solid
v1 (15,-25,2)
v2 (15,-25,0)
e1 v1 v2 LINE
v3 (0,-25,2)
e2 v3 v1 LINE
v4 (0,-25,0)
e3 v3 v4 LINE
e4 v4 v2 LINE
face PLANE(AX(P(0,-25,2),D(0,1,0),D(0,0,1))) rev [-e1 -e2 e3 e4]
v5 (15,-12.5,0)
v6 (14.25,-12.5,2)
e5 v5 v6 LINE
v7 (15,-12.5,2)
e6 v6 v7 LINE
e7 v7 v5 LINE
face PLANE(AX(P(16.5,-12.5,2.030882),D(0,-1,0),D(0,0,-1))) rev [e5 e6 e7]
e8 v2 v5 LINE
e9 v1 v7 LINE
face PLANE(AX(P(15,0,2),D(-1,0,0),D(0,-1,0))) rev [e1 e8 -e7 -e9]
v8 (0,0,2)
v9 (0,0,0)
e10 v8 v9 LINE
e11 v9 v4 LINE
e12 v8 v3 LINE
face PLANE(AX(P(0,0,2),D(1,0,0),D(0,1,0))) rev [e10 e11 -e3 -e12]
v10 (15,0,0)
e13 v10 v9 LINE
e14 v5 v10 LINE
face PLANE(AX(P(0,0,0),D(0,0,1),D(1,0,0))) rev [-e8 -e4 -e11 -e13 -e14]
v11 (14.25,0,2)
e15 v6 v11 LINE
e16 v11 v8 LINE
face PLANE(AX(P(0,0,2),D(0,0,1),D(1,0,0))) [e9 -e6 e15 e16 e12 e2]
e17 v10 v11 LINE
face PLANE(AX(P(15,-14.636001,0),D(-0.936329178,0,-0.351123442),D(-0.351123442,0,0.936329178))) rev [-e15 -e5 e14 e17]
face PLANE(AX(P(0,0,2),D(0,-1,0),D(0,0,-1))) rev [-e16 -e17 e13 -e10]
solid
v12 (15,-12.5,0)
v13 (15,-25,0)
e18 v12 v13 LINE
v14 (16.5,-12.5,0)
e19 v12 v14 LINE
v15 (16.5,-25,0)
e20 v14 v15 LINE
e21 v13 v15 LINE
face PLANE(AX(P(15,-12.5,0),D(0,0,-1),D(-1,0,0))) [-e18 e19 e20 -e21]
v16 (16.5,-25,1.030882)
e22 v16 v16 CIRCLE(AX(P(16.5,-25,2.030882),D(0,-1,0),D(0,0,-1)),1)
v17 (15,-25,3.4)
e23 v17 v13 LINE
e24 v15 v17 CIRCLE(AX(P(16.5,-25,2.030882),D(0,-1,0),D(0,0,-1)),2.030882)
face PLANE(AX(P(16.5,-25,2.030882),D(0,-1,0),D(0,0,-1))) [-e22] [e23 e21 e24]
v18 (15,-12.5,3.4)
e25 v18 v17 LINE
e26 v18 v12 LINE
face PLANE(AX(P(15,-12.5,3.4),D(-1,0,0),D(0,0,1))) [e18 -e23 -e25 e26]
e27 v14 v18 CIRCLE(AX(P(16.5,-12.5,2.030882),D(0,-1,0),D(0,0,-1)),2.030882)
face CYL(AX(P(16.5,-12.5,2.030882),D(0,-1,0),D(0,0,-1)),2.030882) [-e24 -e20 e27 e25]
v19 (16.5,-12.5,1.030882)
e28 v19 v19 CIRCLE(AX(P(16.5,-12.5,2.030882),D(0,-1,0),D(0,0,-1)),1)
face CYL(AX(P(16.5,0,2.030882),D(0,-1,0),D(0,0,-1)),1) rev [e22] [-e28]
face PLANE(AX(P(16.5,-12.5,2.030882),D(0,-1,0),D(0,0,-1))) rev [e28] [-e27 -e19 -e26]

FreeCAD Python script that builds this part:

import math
import FreeCAD as App
import Part
import Sketcher

V = App.Vector


def add_polygon(sketch, points):
    """Adds a closed chain of lines whose ends are joined by coincident constraints."""
    first, n = sketch.GeometryCount, len(points)
    for a, b in zip(points, points[1:] + points[:1]):
        sketch.addGeometry(Part.LineSegment(App.Vector(*a, 0), App.Vector(*b, 0)), False)
    for i in range(n):
        sketch.addConstraint(Sketcher.Constraint("Coincident", first + i, 2, first + (i + 1) % n, 1))

doc = App.newDocument("Part")
body = doc.addObject("PartDesign::Body", "Body")

# Sketch on XY plane
sketch1 = doc.addObject("Sketcher::SketchObject", "Sketch")
body.addObject(sketch1)
sketch1.AttachmentSupport = (doc.XY_Plane, [""])
sketch1.MapMode = "FlatFace"
add_polygon(sketch1, [(0, 0), (0, -25), (15, -25), (15, 0)])  # lines 0-3
sketch1.addConstraint(Sketcher.Constraint("Vertical", 0))
sketch1.addConstraint(Sketcher.Constraint("Horizontal", 1))
sketch1.addConstraint(Sketcher.Constraint("Vertical", 2))
sketch1.addConstraint(Sketcher.Constraint("Horizontal", 3))
sketch1.addConstraint(Sketcher.Constraint("Coincident", 3, 2, -1, 1))
sketch1.addConstraint(Sketcher.Constraint("DistanceX", 1, 1, 1, 2, 15.0))
sketch1.addConstraint(Sketcher.Constraint("DistanceY", 0, 2, 0, 1, 25.0))
pad1 = doc.addObject("PartDesign::Pad", "Pad")
body.addObject(pad1)
pad1.Profile = sketch1
pad1.Length = 2

# Sketch on XZ plane
sketch2 = doc.addObject("Sketcher::SketchObject", "Sketch001")
body.addObject(sketch2)
sketch2.AttachmentSupport = (doc.XZ_Plane, [""])
sketch2.MapMode = "FlatFace"
add_polygon(sketch2, [(15, 0), (14.2, 2), (15, 2)])  # lines 0-2
sketch2.addConstraint(Sketcher.Constraint("Horizontal", 1))
sketch2.addConstraint(Sketcher.Constraint("Vertical", 2))
sketch2.addConstraint(Sketcher.Constraint("PointOnObject", 2, 2, -1))
sketch2.addConstraint(Sketcher.Constraint("DistanceY", 2, 2, 2, 1, 2.0))
sketch2.addConstraint(Sketcher.Constraint("DistanceX", -1, 1, 1, 2, 15.0))
sketch2.addConstraint(Sketcher.Constraint("DistanceX", 1, 1, 1, 2, 0.75))
pocket1 = doc.addObject("PartDesign::Pocket", "Pocket")
body.addObject(pocket1)
pocket1.Profile = sketch2
pocket1.Length = 12.5
pocket1.Reversed = True
body2 = doc.addObject("PartDesign::Body", "Body001")

# Sketch on XZ plane
sketch3 = doc.addObject("Sketcher::SketchObject", "Sketch002")
body2.addObject(sketch3)
sketch3.AttachmentSupport = (doc.getObject("XZ_Plane001"), [""])
sketch3.MapMode = "FlatFace"
sketch3.AttachmentOffset = App.Placement(V(0, 0, 25), App.Rotation())
sketch3.addGeometry(Part.LineSegment(V(15, 0, 0), V(16.5, 0, 0)), False)
sketch3.addGeometry(Part.ArcOfCircle(Part.Circle(V(16.5, 2, 0), V(0, 0, 1), 2), math.radians(-90), math.radians(138)), False)
sketch3.addGeometry(Part.LineSegment(V(15, 3.4, 0), V(15, 0, 0)), False)
sketch3.addConstraint(Sketcher.Constraint("Tangent", 0, 2, 1, 1))
sketch3.addConstraint(Sketcher.Constraint("Coincident", 1, 2, 2, 1))
sketch3.addConstraint(Sketcher.Constraint("Coincident", 2, 2, 0, 1))
sketch3.addConstraint(Sketcher.Constraint("Horizontal", 0))
sketch3.addConstraint(Sketcher.Constraint("Vertical", 2))
sketch3.addConstraint(Sketcher.Constraint("PointOnObject", 0, 2, -1))
sketch3.addConstraint(Sketcher.Constraint("DistanceX", 0, 1, 0, 2, 1.5))
sketch3.addConstraint(Sketcher.Constraint("DistanceY", 2, 2, 2, 1, 3.4))
sketch3.addConstraint(Sketcher.Constraint("DistanceX", -1, 1, 1, 2, 15.0))
pad2 = doc.addObject("PartDesign::Pad", "Pad001")
body2.addObject(pad2)
pad2.Profile = sketch3
pad2.Length = 12.5
pad2.Reversed = True

# Sketch on XZ plane
sketch4 = doc.addObject("Sketcher::SketchObject", "Sketch003")
body2.addObject(sketch4)
sketch4.AttachmentSupport = (doc.getObject("XZ_Plane001"), [""])
sketch4.MapMode = "FlatFace"
sketch4.AttachmentOffset = App.Placement(V(0, 0, 25), App.Rotation())
sketch4.addGeometry(Part.Circle(V(16.5, 2, 0), V(0, 0, 1), 1), False)
sketch4.addConstraint(Sketcher.Constraint("Diameter", 0, 2.0))
sketch4.addConstraint(Sketcher.Constraint("DistanceX", -1, 1, 0, 3, 16.5))
sketch4.addConstraint(Sketcher.Constraint("DistanceY", -1, 1, 0, 3, 2.030882))
pocket2 = doc.addObject("PartDesign::Pocket", "Pocket001")
body2.addObject(pocket2)
pocket2.Profile = sketch4
pocket2.Type = "ThroughAll"

doc.recompute()
